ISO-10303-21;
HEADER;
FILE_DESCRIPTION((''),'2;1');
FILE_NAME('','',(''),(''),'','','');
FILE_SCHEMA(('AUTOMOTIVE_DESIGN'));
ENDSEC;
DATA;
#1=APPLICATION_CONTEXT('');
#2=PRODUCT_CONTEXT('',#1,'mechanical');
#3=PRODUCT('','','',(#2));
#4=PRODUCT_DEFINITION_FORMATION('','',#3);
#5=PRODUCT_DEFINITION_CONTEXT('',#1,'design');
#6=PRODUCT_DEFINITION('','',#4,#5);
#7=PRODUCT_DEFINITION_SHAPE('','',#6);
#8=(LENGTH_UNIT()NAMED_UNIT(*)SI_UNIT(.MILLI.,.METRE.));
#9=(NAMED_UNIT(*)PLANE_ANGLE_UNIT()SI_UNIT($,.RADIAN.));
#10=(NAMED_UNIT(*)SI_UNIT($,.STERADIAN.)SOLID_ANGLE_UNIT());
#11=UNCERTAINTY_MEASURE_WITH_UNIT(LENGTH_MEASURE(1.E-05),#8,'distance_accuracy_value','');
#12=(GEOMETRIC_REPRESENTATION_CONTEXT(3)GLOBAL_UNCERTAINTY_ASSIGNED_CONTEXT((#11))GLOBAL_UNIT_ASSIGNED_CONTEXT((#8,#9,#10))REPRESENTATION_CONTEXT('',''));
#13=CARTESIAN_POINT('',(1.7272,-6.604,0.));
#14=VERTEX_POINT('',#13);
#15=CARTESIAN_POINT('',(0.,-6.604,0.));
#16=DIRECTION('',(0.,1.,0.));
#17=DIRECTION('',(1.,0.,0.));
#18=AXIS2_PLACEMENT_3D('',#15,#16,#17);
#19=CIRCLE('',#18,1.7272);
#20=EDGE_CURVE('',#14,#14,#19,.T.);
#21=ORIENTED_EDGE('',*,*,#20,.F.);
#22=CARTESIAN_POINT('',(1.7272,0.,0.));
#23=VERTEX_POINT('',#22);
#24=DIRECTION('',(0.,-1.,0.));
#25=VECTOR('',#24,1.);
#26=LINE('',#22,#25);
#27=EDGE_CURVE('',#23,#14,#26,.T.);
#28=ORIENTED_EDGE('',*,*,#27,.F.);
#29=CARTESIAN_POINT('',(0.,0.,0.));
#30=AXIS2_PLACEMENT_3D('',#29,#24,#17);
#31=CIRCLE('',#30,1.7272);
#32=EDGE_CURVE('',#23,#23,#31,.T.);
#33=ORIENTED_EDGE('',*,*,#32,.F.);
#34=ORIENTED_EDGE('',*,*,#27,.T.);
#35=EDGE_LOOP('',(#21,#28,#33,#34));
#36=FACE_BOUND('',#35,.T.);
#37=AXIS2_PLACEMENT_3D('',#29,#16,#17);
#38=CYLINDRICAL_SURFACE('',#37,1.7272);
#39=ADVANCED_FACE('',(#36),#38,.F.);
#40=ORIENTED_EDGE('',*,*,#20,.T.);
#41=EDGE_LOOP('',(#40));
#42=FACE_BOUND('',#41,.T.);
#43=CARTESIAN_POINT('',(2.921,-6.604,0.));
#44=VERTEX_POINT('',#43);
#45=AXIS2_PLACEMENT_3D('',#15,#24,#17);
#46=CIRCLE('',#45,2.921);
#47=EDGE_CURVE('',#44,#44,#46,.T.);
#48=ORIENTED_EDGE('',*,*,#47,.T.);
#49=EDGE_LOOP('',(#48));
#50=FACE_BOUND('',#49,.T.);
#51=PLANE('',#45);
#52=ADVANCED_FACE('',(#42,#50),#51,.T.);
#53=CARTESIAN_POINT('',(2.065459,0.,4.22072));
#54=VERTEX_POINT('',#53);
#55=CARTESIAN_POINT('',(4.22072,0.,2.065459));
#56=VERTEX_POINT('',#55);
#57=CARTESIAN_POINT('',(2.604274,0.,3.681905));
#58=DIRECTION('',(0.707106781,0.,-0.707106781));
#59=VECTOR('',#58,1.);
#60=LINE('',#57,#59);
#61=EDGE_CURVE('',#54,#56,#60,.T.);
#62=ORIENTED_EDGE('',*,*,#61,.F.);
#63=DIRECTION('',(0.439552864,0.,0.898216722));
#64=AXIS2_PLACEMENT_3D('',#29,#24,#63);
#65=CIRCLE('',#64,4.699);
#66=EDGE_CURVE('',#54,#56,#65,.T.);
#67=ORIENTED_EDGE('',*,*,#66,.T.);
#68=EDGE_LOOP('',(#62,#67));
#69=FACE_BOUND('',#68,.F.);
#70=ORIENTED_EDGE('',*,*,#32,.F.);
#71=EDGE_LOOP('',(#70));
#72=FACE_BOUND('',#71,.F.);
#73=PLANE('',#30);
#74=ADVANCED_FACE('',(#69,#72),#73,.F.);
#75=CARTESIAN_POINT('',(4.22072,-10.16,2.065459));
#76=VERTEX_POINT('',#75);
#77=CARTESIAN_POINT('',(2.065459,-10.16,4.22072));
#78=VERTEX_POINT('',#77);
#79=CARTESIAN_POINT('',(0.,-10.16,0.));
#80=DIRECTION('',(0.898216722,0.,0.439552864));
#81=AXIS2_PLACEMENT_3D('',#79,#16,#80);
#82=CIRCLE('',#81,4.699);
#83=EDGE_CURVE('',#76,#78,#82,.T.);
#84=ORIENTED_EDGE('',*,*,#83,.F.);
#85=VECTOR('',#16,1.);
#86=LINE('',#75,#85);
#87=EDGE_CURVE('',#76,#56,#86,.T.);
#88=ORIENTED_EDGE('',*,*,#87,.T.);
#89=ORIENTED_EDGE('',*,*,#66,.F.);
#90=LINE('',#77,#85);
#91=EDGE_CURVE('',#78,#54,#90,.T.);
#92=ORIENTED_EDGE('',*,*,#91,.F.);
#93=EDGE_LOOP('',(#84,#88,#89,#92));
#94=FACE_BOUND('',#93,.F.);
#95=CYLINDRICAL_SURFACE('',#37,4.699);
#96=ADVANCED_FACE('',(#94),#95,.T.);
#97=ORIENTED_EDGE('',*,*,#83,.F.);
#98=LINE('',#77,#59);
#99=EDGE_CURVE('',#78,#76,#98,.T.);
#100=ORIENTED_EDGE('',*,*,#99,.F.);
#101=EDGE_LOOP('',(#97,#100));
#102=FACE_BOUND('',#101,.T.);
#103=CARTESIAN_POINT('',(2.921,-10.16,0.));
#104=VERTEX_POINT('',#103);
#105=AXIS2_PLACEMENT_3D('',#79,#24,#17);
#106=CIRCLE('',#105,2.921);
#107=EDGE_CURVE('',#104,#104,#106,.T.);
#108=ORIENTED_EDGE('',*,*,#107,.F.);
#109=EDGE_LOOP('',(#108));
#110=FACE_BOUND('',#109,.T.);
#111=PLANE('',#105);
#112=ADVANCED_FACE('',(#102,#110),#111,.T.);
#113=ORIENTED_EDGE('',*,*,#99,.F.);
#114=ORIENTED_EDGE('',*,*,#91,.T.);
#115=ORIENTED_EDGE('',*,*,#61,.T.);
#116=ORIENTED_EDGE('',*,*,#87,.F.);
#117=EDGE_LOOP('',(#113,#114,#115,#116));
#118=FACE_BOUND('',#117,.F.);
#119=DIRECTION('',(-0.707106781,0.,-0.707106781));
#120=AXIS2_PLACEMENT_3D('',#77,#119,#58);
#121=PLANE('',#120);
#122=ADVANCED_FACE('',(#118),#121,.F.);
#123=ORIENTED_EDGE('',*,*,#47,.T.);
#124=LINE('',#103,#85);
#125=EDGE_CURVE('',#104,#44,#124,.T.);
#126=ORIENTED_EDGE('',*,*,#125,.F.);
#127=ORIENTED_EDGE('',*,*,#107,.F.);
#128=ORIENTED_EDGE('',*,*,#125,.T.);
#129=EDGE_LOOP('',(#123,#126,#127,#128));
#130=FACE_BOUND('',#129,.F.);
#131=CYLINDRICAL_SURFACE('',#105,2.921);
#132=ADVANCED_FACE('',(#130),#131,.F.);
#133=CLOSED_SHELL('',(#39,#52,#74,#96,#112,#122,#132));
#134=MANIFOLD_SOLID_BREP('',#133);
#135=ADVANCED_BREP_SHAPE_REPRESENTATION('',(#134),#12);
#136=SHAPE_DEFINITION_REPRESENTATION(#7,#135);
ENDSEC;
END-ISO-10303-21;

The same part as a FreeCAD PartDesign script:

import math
import FreeCAD as App
import Part
import Sketcher
Q = App.Units.Quantity

doc = App.newDocument("Part")
body = doc.addObject("PartDesign::Body", "Body")

sketch1 = doc.addObject("Sketcher::SketchObject", "Sketch")
body.addObject(sketch1)
sketch1.AttachmentSupport = (doc.XZ_Plane, [""])
sketch1.MapMode = "FlatFace"
sketch1.addGeometry([
    Part.Circle(App.Vector(0, 0, 0), App.Vector(0, 0, 1), 4.7),
    Part.Circle(App.Vector(0, 0, 0), App.Vector(0, 0, 1), 1.7),
], False)
sketch1.addConstraint([
    Sketcher.Constraint("Coincident", 0, 3, -1, 1),
    Sketcher.Constraint("Coincident", 1, 3, -1, 1),
    Sketcher.Constraint("Diameter", 0, Q("0.37 in")),
    Sketcher.Constraint("Diameter", 1, Q("0.136 in")),
])
pad1 = doc.addObject("PartDesign::Pad", "Pad")
body.addObject(pad1)
pad1.Profile = sketch1
pad1.Length = Q("0.4 in")

sketch2 = doc.addObject("Sketcher::SketchObject", "Sketch001")
body.addObject(sketch2)
sketch2.AttachmentSupport = (doc.XZ_Plane, [""])
sketch2.MapMode = "FlatFace"
sketch2.AttachmentOffset = App.Placement(App.Vector(0, 0, 0.4 * 25.4), App.Rotation())
sketch2.addGeometry([
    Part.ArcOfCircle(Part.Circle(App.Vector(0, 0, 0), App.Vector(0, 0, 1), 4.7), math.radians(26), math.radians(64)),
    Part.LineSegment(App.Vector(2.1, 4.2, 0), App.Vector(4.2, 2.1, 0)),
], False)
sketch2.addConstraint([
    Sketcher.Constraint("Coincident", 0, 1, 1, 2),
    Sketcher.Constraint("Coincident", 1, 1, 0, 2),
    Sketcher.Constraint("Coincident", 0, 3, -1, 1),
    Sketcher.Constraint("Angle", 1, Q("-45 deg")),
    Sketcher.Constraint("Radius", 0, Q("0.185 in")),
    Sketcher.Constraint("Distance", 1, Q("0.12 in")),
])
pocket1 = doc.addObject("PartDesign::Pocket", "Pocket")
body.addObject(pocket1)
pocket1.Profile = sketch2
pocket1.Type = "ThroughAll"

sketch3 = doc.addObject("Sketcher::SketchObject", "Sketch002")
body.addObject(sketch3)
sketch3.AttachmentSupport = (doc.XZ_Plane, [""])
sketch3.MapMode = "FlatFace"
sketch3.AttachmentOffset = App.Placement(App.Vector(0, 0, 0.4 * 25.4), App.Rotation())
sketch3.addGeometry([
    Part.Circle(App.Vector(0, 0, 0), App.Vector(0, 0, 1), 2.9),
    Part.Circle(App.Vector(0, 0, 0), App.Vector(0, 0, 1), 1.7),
], False)
sketch3.addConstraint([
    Sketcher.Constraint("Coincident", 0, 3, -1, 1),
    Sketcher.Constraint("Coincident", 1, 3, -1, 1),
    Sketcher.Constraint("Diameter", 0, Q("0.23 in")),
    Sketcher.Constraint("Diameter", 1, Q("0.135 in")),
])
pocket2 = doc.addObject("PartDesign::Pocket", "Pocket001")
body.addObject(pocket2)
pocket2.Profile = sketch3
pocket2.Length = Q("0.14 in")

doc.recompute()
